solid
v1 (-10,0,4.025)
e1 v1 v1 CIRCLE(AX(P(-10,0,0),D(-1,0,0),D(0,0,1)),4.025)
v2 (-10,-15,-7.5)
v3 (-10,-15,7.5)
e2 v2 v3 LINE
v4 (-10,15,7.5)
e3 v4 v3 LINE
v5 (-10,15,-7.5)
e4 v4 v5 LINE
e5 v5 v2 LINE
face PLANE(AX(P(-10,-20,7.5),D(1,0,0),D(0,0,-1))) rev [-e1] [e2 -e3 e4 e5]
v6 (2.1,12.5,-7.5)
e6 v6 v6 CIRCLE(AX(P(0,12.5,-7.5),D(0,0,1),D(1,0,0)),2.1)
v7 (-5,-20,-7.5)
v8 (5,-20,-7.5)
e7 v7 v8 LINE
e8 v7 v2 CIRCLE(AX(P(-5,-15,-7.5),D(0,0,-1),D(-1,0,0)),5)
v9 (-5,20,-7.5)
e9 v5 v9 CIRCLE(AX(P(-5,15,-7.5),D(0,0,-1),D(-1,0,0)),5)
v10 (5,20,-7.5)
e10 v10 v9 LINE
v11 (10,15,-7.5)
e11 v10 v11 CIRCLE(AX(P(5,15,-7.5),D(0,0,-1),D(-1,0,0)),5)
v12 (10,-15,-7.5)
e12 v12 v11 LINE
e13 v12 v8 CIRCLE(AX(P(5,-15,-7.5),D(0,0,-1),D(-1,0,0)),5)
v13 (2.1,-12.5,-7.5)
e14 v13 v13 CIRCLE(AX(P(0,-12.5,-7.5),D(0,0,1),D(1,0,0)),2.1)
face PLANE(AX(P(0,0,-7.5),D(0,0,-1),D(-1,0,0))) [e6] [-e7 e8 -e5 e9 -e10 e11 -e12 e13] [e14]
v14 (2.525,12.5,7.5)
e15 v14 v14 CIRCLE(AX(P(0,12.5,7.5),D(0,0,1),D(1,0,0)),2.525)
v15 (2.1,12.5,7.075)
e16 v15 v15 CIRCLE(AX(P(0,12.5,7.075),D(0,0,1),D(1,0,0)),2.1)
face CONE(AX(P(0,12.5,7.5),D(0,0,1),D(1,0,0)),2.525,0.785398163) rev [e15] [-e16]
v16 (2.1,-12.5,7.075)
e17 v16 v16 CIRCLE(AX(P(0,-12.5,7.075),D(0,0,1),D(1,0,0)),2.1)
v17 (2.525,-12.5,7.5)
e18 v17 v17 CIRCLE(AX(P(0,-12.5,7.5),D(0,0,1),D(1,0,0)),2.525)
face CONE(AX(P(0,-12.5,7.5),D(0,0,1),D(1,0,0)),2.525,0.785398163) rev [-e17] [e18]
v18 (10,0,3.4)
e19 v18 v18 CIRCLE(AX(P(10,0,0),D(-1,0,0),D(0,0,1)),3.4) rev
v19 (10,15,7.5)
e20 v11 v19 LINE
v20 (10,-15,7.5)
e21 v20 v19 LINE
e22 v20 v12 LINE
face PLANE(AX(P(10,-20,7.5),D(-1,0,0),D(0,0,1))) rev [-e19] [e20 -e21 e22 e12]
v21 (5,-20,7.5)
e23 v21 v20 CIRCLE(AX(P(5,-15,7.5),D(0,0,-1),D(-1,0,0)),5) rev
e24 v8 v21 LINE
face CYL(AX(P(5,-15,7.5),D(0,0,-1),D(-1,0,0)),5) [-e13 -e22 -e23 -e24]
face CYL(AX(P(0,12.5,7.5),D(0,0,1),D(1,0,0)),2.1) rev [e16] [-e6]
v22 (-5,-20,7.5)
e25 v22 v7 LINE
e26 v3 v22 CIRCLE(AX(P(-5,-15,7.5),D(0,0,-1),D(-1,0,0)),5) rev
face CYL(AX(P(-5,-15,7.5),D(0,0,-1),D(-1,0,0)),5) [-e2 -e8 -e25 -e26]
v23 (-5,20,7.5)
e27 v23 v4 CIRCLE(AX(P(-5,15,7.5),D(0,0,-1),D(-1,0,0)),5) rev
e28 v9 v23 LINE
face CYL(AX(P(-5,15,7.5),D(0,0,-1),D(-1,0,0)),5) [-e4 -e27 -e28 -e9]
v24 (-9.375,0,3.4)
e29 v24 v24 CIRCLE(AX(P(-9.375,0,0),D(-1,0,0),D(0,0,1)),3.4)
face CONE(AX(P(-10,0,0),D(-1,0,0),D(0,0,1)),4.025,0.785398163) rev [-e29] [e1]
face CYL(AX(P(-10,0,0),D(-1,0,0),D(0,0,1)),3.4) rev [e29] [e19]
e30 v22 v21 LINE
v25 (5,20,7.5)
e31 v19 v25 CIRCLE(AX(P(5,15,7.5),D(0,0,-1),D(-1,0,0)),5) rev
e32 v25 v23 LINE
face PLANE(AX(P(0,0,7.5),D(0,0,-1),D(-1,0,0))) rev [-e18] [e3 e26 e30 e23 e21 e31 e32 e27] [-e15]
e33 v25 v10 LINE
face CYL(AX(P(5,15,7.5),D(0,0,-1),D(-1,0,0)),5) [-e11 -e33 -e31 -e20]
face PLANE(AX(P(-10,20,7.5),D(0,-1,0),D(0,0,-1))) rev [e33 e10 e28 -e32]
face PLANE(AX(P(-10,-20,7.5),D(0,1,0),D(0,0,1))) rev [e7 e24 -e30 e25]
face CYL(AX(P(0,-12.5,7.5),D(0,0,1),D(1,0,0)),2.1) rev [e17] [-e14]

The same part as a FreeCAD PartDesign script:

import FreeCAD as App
import Part
import Sketcher


def edges_at(feature, points):
    """Names of the edges that pass closest to the given points."""
    edges = feature.Shape.Edges
    near = lambda p: min(range(len(edges)), key=lambda i: edges[i].distToShape(Part.Vertex(*p))[0])
    return sorted({f"Edge{near(p) + 1}" for p in points})

doc = App.newDocument("Part")
params = doc.addObject("Spreadsheet::Sheet", "Params")
for row, (alias, value) in enumerate([
    ("sketch1_width", "20 mm"),
    ("sketch1_height", "40 mm"),
    ("pad1_length", "15 mm"),
    ("fillet_radius", "5 mm"),
    ("sketch2_diameter", "4.2 mm"),
    ("hole_diameter", "4.2 mm"),
    ("hole_csink_diameter", "5.05 mm"),
    ("sketch3_diameter", "6.8 mm"),
    ("hole2_diameter", "6.8 mm"),
    ("hole2_depth", "20 mm"),
    ("hole2_csink_diameter", "8.05 mm"),
], start=1):
    params.set(f"A{row}", alias)
    params.set(f"B{row}", "=" + value)
    params.setAlias(f"B{row}", alias)

body = doc.addObject("PartDesign::Body", "Body")

# Sketch on XY plane
sketch1 = doc.addObject("Sketcher::SketchObject", "Sketch")
body.addObject(sketch1)
sketch1.AttachmentSupport = (doc.XY_Plane, [""])
sketch1.MapMode = "FlatFace"
sketch1.addGeometry([
    Part.LineSegment(App.Vector(-10, 20, 0), App.Vector(-10, -20, 0)),
    Part.LineSegment(App.Vector(-10, -20, 0), App.Vector(10, -20, 0)),
    Part.LineSegment(App.Vector(10, -20, 0), App.Vector(10, 20, 0)),
    Part.LineSegment(App.Vector(10, 20, 0), App.Vector(-10, 20, 0)),
], False)
sketch1.addConstraint([
    Sketcher.Constraint("Coincident", 0, 2, 1, 1),
    Sketcher.Constraint("Coincident", 1, 2, 2, 1),
    Sketcher.Constraint("Coincident", 2, 2, 3, 1),
    Sketcher.Constraint("Coincident", 3, 2, 0, 1),
    Sketcher.Constraint("Vertical", 0),
    Sketcher.Constraint("Horizontal", 1),
    Sketcher.Constraint("Vertical", 2),
    Sketcher.Constraint("Horizontal", 3),
    Sketcher.Constraint("Symmetric", 0, 2, 2, 2, -1, 1),
    Sketcher.Constraint("DistanceX", 1, 1, 1, 2, 20.0),
    Sketcher.Constraint("DistanceY", 0, 2, 0, 1, 40.0),
])
sketch1.setExpression("Constraints[9]", "Params.sketch1_width")
sketch1.setExpression("Constraints[10]", "Params.sketch1_height")
pad1 = doc.addObject("PartDesign::Pad", "Pad")
body.addObject(pad1)
pad1.Profile = sketch1
pad1.setExpression("Length", "Params.pad1_length")
pad1.Midplane = True
doc.recompute()

fillet = doc.addObject("PartDesign::Fillet", "Fillet")
body.addObject(fillet)
fillet.Base = (pad1, edges_at(pad1, [
    (10, -20, 0),
    (-10, -20, 0),
    (-10, 20, 0),
    (10, 20, 0),
]))
fillet.setExpression("Radius", "Params.fillet_radius")

# Sketch on XY plane
sketch2 = doc.addObject("Sketcher::SketchObject", "Sketch001")
body.addObject(sketch2)
sketch2.AttachmentSupport = (doc.XY_Plane, [""])
sketch2.MapMode = "FlatFace"
sketch2.AttachmentOffset = App.Placement(App.Vector(0, 0, 7.5), App.Rotation())
sketch2.addGeometry([
    Part.Circle(App.Vector(0, 12.5, 0), App.Vector(0, 0, 1), 2.1),
    Part.Circle(App.Vector(0, -12.5, 0), App.Vector(0, 0, 1), 2.1),
], False)
sketch2.addConstraint([
    Sketcher.Constraint("Equal", 0, 1),
    Sketcher.Constraint("Symmetric", 0, 3, 1, 3, -1, 1),
    Sketcher.Constraint("PointOnObject", 0, 3, -2),
    Sketcher.Constraint("Diameter", 0, 4.2),
    Sketcher.Constraint("DistanceY", 1, 3, 0, 3, 25.0),
])
sketch2.setExpression("Constraints[3]", "Params.sketch2_diameter")
doc.recompute()
hole = doc.addObject("PartDesign::Hole", "Hole")
body.addObject(hole)
hole.Profile = sketch2
hole.ThreadType = "None"
hole.setExpression("Diameter", "Params.hole_diameter")
hole.DepthType = "ThroughAll"
hole.HoleCutType = "Countersink"
hole.setExpression("HoleCutDiameter", "Params.hole_csink_diameter")
hole.HoleCutCountersinkAngle = 90

# Sketch on YZ plane
sketch3 = doc.addObject("Sketcher::SketchObject", "Sketch002")
body.addObject(sketch3)
sketch3.AttachmentSupport = (doc.YZ_Plane, [""])
sketch3.MapMode = "FlatFace"
sketch3.AttachmentOffset = App.Placement(App.Vector(0, 0, -10), App.Rotation())
sketch3.addGeometry(Part.Circle(App.Vector(0, 0, 0), App.Vector(0, 0, 1), 3.4), False)
sketch3.addConstraint([
    Sketcher.Constraint("Coincident", 0, 3, -1, 1),
    Sketcher.Constraint("Diameter", 0, 6.8),
])
sketch3.setExpression("Constraints[1]", "Params.sketch3_diameter")
doc.recompute()
hole2 = doc.addObject("PartDesign::Hole", "Hole001")
body.addObject(hole2)
hole2.Profile = sketch3
hole2.ThreadType = "None"
hole2.setExpression("Diameter", "Params.hole2_diameter")
hole2.DepthType = "Dimension"
hole2.setExpression("Depth", "Params.hole2_depth")
hole2.DrillPoint = "Angled"
hole2.DrillPointAngle = 118
hole2.HoleCutType = "Countersink"
hole2.setExpression("HoleCutDiameter", "Params.hole2_csink_diameter")
hole2.HoleCutCountersinkAngle = 90
hole2.Reversed = True

doc.recompute()
